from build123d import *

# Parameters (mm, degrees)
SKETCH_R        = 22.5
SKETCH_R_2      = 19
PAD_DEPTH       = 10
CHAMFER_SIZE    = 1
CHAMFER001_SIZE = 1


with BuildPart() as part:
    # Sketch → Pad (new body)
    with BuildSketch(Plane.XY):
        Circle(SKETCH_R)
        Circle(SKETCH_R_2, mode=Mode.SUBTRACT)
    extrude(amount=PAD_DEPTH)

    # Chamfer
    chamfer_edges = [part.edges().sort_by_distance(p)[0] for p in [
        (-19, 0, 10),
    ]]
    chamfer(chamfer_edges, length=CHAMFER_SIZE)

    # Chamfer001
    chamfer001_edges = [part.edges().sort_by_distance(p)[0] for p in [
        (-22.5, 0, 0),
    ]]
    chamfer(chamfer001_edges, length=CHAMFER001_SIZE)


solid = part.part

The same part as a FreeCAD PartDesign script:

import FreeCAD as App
import Part
import Sketcher
from FreeCAD import Vector
Q = App.Units.Quantity


def edges_at(feature, points):
    """Names of the edges that pass closest to the given points."""
    edges = feature.Shape.Edges
    near = lambda p: min(range(len(edges)), key=lambda i: edges[i].distToShape(Part.Vertex(*p))[0])
    return sorted({f"Edge{near(p) + 1}" for p in points})

doc = App.newDocument("Part")
body = doc.addObject("PartDesign::Body", "Body")

# Sketch on XY plane
sketch1 = doc.addObject("Sketcher::SketchObject", "Sketch")
body.addObject(sketch1)
sketch1.AttachmentSupport = (doc.XY_Plane, [""])
sketch1.MapMode = "FlatFace"
sketch1.addGeometry(Part.Circle(Vector(0, 0, 0), Vector(0, 0, 1), 22.5), False)
sketch1.addGeometry(Part.Circle(Vector(0, 0, 0), Vector(0, 0, 1), 19), False)
sketch1.addConstraint(Sketcher.Constraint("Coincident", 0, 3, -1, 1))
sketch1.addConstraint(Sketcher.Constraint("Coincident", 1, 3, -1, 1))
sketch1.addConstraint(Sketcher.Constraint("Diameter", 0, Q("45 mm")))
sketch1.addConstraint(Sketcher.Constraint("Diameter", 1, Q("38 mm")))
pad1 = doc.addObject("PartDesign::Pad", "Pad")
body.addObject(pad1)
pad1.Profile = sketch1
pad1.Length = 10
doc.recompute()

chamfer = doc.addObject("PartDesign::Chamfer", "Chamfer")
body.addObject(chamfer)
chamfer.Base = (pad1, edges_at(pad1, [(-19, 0, 10)]))
chamfer.Size = 1
doc.recompute()

chamfer2 = doc.addObject("PartDesign::Chamfer", "Chamfer001")
body.addObject(chamfer2)
chamfer2.Base = (chamfer, edges_at(chamfer, [(-22.5, 0, 0)]))
chamfer2.Size = 1

doc.recompute()
